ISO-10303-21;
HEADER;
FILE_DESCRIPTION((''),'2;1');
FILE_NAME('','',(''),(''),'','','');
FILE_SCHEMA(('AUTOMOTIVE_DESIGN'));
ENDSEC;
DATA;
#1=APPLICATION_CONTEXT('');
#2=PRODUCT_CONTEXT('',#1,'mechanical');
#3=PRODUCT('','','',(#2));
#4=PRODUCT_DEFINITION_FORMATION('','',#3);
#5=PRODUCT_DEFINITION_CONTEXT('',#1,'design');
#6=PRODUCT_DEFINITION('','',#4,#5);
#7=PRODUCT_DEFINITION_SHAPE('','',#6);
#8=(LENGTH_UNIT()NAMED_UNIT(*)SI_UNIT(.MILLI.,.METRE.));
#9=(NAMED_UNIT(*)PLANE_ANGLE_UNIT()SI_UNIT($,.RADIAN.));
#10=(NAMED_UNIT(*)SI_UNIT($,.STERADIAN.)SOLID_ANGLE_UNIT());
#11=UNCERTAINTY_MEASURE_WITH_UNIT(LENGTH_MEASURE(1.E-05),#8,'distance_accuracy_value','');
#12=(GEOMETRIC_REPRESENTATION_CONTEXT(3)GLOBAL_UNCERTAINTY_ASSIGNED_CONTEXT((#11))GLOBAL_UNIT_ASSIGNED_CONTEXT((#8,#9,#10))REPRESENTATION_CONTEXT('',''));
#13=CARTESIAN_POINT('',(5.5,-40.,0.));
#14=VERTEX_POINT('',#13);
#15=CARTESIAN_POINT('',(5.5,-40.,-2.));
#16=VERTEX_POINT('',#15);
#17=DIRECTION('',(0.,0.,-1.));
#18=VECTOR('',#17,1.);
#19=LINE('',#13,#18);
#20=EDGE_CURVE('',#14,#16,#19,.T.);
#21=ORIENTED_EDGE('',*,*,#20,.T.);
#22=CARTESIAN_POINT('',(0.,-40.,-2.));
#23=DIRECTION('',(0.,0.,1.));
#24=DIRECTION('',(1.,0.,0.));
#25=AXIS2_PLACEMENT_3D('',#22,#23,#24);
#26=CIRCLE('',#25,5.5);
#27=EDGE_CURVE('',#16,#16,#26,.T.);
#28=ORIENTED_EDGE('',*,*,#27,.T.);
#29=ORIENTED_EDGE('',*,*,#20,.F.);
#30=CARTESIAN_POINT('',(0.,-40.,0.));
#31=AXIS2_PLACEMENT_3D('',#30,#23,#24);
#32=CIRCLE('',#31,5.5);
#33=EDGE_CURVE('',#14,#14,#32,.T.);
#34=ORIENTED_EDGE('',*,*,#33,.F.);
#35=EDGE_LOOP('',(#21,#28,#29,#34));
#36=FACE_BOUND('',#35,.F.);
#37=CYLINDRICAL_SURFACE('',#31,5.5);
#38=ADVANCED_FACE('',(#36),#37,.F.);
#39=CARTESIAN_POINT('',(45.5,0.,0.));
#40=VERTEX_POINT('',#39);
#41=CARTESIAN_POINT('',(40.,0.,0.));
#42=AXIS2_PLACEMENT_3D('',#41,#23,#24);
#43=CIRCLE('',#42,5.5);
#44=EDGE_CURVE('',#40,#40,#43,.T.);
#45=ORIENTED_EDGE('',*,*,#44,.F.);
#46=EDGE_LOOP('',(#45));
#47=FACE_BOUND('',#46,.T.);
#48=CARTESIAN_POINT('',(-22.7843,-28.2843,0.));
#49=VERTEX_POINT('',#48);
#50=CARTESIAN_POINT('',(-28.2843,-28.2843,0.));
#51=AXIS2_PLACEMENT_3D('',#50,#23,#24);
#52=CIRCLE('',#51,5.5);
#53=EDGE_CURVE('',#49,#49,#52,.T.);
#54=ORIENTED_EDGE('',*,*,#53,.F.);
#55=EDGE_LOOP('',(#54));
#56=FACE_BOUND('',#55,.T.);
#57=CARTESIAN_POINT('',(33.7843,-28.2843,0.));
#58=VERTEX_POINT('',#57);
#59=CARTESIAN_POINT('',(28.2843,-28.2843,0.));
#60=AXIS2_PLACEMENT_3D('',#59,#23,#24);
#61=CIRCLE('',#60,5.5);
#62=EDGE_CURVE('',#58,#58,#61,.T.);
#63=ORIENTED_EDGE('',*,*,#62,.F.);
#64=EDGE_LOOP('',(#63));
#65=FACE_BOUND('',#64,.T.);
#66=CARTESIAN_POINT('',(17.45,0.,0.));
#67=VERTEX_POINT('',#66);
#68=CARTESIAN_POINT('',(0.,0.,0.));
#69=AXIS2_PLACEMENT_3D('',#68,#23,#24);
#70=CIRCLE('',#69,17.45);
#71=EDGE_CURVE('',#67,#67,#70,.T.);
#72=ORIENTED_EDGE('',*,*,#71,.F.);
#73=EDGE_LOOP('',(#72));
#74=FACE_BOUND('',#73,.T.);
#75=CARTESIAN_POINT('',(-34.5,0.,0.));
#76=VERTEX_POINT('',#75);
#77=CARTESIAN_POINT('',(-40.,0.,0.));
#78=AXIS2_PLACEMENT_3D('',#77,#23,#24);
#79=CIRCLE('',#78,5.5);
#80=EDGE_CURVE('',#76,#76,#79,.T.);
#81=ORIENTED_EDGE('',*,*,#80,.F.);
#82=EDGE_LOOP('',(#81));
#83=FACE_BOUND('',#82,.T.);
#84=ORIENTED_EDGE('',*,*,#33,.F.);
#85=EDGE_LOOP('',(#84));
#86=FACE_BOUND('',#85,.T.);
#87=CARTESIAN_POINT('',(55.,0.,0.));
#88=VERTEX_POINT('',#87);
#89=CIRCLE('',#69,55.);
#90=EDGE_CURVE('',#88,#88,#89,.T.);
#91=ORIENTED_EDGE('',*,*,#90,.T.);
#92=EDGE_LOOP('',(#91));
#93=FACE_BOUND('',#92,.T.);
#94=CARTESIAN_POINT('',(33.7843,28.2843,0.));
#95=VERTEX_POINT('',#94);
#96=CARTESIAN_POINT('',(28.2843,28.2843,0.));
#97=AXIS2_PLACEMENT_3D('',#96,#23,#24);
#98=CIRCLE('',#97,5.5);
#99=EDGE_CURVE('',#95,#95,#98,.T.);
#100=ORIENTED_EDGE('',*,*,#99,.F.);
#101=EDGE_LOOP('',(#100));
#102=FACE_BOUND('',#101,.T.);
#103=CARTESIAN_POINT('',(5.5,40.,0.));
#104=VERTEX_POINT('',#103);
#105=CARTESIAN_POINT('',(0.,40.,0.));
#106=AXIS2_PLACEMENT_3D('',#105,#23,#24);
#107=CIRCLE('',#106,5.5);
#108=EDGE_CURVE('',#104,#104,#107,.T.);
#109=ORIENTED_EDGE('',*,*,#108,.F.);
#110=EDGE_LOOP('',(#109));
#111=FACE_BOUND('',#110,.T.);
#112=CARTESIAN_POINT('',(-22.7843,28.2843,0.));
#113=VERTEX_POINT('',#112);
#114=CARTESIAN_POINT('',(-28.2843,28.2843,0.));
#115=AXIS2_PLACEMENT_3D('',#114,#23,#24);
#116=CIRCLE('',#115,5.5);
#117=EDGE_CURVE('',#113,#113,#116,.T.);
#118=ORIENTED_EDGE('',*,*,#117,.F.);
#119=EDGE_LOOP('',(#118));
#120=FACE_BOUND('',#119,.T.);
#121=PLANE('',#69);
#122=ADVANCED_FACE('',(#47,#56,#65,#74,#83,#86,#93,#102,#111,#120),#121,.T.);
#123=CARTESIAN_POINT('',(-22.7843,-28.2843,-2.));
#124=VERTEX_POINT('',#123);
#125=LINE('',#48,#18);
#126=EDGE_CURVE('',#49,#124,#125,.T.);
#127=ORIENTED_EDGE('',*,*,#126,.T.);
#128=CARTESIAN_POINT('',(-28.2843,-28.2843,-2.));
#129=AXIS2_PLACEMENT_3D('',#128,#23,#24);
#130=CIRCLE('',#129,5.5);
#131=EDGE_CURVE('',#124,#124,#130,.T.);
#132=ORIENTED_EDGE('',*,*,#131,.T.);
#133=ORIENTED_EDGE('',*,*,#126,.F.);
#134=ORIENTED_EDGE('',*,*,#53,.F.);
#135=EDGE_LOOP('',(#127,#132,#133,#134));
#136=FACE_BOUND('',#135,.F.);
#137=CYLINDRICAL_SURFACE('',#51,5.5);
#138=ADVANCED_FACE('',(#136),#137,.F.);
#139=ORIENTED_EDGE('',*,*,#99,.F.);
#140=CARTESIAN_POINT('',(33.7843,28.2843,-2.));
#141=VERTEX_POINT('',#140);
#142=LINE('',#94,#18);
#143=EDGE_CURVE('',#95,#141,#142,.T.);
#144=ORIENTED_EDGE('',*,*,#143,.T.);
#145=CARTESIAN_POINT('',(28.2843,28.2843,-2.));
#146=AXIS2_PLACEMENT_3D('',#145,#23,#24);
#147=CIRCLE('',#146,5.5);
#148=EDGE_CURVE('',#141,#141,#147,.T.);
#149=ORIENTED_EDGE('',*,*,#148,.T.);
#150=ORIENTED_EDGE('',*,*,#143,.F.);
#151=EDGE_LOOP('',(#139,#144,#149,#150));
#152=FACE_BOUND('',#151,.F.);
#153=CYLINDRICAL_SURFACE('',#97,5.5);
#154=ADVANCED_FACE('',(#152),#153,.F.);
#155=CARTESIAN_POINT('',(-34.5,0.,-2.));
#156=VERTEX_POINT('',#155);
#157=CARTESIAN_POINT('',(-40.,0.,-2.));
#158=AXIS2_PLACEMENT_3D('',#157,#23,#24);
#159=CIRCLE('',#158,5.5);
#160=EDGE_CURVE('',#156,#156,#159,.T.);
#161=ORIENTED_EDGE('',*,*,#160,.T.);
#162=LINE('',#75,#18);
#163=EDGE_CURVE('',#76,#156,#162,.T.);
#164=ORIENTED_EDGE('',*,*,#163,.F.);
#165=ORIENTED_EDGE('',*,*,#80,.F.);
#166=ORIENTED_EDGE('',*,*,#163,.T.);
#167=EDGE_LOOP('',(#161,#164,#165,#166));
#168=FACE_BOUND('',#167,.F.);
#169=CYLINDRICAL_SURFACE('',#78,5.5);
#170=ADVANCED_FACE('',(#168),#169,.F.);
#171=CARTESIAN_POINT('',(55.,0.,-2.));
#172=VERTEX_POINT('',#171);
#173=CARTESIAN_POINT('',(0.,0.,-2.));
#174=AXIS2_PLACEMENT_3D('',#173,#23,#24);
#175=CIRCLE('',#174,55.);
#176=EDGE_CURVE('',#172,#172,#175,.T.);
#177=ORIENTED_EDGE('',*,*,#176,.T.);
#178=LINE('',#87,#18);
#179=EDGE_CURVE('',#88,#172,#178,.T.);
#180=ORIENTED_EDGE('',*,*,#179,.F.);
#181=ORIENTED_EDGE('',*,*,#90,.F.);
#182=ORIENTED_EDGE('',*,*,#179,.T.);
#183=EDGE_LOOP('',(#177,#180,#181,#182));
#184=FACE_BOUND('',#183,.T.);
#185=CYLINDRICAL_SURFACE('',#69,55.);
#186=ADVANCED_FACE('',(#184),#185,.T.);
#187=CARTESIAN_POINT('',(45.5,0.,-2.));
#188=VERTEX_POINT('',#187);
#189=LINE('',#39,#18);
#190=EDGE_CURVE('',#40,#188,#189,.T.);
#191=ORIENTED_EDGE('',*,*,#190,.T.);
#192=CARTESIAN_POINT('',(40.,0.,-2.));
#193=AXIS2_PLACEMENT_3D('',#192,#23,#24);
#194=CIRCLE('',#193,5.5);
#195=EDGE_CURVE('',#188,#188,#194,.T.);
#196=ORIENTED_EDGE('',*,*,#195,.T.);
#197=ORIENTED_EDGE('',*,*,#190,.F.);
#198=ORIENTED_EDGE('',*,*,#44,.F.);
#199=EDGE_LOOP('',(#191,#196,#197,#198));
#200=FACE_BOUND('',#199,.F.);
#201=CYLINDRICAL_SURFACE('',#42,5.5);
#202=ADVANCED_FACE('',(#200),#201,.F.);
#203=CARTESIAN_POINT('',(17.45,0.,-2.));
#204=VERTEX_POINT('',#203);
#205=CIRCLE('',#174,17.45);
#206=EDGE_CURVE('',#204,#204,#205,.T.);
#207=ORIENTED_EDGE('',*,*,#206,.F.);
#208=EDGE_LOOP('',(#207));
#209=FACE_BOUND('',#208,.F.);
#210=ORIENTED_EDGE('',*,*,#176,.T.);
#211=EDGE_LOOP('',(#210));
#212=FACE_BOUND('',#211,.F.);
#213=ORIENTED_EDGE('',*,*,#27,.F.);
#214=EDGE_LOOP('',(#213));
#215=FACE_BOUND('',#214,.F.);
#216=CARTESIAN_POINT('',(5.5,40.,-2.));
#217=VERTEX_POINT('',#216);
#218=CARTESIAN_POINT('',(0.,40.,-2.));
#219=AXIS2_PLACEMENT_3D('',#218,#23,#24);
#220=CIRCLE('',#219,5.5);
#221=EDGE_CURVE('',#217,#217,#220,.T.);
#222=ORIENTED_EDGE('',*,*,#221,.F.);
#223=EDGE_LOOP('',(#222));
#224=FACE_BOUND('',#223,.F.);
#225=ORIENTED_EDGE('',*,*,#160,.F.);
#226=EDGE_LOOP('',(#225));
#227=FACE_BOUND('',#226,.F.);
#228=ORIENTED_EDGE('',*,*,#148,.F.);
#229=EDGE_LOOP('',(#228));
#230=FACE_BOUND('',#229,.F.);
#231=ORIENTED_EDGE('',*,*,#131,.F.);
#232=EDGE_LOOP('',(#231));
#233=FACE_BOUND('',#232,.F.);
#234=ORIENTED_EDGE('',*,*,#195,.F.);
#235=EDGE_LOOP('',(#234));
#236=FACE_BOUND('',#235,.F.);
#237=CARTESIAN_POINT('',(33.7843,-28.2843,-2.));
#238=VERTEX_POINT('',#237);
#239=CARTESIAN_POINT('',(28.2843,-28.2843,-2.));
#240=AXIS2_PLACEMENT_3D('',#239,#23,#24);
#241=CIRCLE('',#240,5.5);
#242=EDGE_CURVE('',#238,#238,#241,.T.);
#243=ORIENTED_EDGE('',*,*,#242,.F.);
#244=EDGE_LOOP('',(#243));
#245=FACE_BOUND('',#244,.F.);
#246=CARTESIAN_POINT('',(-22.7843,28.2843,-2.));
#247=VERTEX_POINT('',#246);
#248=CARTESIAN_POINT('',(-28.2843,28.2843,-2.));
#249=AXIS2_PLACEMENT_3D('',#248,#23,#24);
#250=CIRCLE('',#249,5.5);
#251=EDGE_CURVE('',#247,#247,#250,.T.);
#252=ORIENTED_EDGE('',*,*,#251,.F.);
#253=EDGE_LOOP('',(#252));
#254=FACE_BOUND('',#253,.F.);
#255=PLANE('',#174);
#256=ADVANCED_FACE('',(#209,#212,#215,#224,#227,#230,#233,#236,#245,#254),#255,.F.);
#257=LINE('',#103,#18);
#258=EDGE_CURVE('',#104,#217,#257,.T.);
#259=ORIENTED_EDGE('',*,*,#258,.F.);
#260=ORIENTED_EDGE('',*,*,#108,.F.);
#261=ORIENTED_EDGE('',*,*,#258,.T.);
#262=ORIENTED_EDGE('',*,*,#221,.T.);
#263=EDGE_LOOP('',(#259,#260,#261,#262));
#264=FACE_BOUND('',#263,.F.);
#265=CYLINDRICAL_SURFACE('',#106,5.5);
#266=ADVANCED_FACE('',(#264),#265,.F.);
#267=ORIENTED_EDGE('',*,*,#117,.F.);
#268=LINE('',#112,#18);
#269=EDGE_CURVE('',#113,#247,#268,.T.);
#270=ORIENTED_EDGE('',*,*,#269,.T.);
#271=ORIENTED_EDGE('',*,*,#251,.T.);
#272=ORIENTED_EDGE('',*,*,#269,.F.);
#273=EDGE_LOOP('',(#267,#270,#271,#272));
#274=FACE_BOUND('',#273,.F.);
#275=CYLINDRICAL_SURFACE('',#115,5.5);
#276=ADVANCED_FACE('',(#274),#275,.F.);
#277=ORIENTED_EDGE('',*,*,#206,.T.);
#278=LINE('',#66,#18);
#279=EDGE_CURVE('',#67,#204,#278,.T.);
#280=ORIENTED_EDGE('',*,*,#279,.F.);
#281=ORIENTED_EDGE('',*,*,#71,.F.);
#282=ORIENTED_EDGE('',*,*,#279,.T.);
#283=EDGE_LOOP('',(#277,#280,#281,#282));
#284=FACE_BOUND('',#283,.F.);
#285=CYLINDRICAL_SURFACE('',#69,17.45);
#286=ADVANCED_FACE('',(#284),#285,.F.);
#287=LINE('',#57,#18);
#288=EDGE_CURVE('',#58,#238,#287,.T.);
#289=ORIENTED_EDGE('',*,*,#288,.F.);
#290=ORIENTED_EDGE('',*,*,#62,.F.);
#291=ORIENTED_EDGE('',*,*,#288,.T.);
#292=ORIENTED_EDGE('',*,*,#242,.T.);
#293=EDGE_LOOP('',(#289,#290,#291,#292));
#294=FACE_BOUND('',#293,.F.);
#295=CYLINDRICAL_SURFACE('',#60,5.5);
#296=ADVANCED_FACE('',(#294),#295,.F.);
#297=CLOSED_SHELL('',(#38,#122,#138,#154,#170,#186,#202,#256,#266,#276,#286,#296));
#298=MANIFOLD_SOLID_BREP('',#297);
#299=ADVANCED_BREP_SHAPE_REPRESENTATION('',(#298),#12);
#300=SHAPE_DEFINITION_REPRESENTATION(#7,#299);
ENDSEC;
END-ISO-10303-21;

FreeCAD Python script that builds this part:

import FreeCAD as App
import Part
import Sketcher
from FreeCAD import Vector

doc = App.newDocument("Part")
body = doc.addObject("PartDesign::Body", "Body")

# Sketch on XY plane
sketch1 = body.newObject("Sketcher::SketchObject", "Sketch")
sketch1.AttachmentSupport = (doc.getObject("XY_Plane"), [""])
sketch1.MapMode = "FlatFace"
sketch1.addGeometry([
    Part.Circle(Vector(0, 0, 0), Vector(0, 0, 1), 55),  # 0
    Part.Circle(Vector(-28, -28, 0), Vector(0, 0, 1), 6),  # 1
    Part.Circle(Vector(0, -40, 0), Vector(0, 0, 1), 6),  # 2
    Part.Circle(Vector(28, -28, 0), Vector(0, 0, 1), 6),  # 3
    Part.Circle(Vector(-40, 0, 0), Vector(0, 0, 1), 6),  # 4
    Part.Circle(Vector(-28, 28, 0), Vector(0, 0, 1), 6),  # 5
    Part.Circle(Vector(0, 0, 0), Vector(0, 0, 1), 17),  # 6
    Part.Circle(Vector(40, 0, 0), Vector(0, 0, 1), 6),  # 7
    Part.Circle(Vector(0, 40, 0), Vector(0, 0, 1), 6),  # 8
    Part.Circle(Vector(28, 28, 0), Vector(0, 0, 1), 6),  # 9
], False)
sketch1.addConstraint([
    Sketcher.Constraint("Coincident", 0, 3, -1, 1),
    Sketcher.Constraint("Coincident", 6, 3, -1, 1),
    Sketcher.Constraint("Equal", 1, 2),
    Sketcher.Constraint("Equal", 2, 3),
    Sketcher.Constraint("Equal", 3, 4),
    Sketcher.Constraint("Equal", 4, 5),
    Sketcher.Constraint("Equal", 5, 7),
    Sketcher.Constraint("Equal", 7, 8),
    Sketcher.Constraint("Equal", 8, 9),
    Sketcher.Constraint("Symmetric", 3, 3, 5, 3, -1, 1),
    Sketcher.Constraint("Symmetric", 4, 3, 7, 3, -1, 1),
    Sketcher.Constraint("Symmetric", 2, 3, 8, 3, -1, 1),
    Sketcher.Constraint("Symmetric", 1, 3, 9, 3, -1, 1),
    Sketcher.Constraint("Symmetric", 1, 3, 3, 3, -2),
    Sketcher.Constraint("PointOnObject", 2, 3, -2),
    Sketcher.Constraint("PointOnObject", 4, 3, -1),
    Sketcher.Constraint("Diameter", 0, 110.0),
    Sketcher.Constraint("Diameter", 1, 11.0),
    Sketcher.Constraint("Diameter", 6, 34.9),
    Sketcher.Constraint("DistanceY", 2, 3, -1, 1, 40.0),
    Sketcher.Constraint("DistanceX", 4, 3, -1, 1, 40.0),
    Sketcher.Constraint("DistanceX", 1, 3, -1, 1, 28.2843),
    Sketcher.Constraint("DistanceY", 1, 3, -1, 1, 28.2843),
])
pad1 = body.newObject("PartDesign::Pad", "Pad")
pad1.Profile = sketch1
pad1.Length = 2
pad1.Reversed = True

doc.recompute()
